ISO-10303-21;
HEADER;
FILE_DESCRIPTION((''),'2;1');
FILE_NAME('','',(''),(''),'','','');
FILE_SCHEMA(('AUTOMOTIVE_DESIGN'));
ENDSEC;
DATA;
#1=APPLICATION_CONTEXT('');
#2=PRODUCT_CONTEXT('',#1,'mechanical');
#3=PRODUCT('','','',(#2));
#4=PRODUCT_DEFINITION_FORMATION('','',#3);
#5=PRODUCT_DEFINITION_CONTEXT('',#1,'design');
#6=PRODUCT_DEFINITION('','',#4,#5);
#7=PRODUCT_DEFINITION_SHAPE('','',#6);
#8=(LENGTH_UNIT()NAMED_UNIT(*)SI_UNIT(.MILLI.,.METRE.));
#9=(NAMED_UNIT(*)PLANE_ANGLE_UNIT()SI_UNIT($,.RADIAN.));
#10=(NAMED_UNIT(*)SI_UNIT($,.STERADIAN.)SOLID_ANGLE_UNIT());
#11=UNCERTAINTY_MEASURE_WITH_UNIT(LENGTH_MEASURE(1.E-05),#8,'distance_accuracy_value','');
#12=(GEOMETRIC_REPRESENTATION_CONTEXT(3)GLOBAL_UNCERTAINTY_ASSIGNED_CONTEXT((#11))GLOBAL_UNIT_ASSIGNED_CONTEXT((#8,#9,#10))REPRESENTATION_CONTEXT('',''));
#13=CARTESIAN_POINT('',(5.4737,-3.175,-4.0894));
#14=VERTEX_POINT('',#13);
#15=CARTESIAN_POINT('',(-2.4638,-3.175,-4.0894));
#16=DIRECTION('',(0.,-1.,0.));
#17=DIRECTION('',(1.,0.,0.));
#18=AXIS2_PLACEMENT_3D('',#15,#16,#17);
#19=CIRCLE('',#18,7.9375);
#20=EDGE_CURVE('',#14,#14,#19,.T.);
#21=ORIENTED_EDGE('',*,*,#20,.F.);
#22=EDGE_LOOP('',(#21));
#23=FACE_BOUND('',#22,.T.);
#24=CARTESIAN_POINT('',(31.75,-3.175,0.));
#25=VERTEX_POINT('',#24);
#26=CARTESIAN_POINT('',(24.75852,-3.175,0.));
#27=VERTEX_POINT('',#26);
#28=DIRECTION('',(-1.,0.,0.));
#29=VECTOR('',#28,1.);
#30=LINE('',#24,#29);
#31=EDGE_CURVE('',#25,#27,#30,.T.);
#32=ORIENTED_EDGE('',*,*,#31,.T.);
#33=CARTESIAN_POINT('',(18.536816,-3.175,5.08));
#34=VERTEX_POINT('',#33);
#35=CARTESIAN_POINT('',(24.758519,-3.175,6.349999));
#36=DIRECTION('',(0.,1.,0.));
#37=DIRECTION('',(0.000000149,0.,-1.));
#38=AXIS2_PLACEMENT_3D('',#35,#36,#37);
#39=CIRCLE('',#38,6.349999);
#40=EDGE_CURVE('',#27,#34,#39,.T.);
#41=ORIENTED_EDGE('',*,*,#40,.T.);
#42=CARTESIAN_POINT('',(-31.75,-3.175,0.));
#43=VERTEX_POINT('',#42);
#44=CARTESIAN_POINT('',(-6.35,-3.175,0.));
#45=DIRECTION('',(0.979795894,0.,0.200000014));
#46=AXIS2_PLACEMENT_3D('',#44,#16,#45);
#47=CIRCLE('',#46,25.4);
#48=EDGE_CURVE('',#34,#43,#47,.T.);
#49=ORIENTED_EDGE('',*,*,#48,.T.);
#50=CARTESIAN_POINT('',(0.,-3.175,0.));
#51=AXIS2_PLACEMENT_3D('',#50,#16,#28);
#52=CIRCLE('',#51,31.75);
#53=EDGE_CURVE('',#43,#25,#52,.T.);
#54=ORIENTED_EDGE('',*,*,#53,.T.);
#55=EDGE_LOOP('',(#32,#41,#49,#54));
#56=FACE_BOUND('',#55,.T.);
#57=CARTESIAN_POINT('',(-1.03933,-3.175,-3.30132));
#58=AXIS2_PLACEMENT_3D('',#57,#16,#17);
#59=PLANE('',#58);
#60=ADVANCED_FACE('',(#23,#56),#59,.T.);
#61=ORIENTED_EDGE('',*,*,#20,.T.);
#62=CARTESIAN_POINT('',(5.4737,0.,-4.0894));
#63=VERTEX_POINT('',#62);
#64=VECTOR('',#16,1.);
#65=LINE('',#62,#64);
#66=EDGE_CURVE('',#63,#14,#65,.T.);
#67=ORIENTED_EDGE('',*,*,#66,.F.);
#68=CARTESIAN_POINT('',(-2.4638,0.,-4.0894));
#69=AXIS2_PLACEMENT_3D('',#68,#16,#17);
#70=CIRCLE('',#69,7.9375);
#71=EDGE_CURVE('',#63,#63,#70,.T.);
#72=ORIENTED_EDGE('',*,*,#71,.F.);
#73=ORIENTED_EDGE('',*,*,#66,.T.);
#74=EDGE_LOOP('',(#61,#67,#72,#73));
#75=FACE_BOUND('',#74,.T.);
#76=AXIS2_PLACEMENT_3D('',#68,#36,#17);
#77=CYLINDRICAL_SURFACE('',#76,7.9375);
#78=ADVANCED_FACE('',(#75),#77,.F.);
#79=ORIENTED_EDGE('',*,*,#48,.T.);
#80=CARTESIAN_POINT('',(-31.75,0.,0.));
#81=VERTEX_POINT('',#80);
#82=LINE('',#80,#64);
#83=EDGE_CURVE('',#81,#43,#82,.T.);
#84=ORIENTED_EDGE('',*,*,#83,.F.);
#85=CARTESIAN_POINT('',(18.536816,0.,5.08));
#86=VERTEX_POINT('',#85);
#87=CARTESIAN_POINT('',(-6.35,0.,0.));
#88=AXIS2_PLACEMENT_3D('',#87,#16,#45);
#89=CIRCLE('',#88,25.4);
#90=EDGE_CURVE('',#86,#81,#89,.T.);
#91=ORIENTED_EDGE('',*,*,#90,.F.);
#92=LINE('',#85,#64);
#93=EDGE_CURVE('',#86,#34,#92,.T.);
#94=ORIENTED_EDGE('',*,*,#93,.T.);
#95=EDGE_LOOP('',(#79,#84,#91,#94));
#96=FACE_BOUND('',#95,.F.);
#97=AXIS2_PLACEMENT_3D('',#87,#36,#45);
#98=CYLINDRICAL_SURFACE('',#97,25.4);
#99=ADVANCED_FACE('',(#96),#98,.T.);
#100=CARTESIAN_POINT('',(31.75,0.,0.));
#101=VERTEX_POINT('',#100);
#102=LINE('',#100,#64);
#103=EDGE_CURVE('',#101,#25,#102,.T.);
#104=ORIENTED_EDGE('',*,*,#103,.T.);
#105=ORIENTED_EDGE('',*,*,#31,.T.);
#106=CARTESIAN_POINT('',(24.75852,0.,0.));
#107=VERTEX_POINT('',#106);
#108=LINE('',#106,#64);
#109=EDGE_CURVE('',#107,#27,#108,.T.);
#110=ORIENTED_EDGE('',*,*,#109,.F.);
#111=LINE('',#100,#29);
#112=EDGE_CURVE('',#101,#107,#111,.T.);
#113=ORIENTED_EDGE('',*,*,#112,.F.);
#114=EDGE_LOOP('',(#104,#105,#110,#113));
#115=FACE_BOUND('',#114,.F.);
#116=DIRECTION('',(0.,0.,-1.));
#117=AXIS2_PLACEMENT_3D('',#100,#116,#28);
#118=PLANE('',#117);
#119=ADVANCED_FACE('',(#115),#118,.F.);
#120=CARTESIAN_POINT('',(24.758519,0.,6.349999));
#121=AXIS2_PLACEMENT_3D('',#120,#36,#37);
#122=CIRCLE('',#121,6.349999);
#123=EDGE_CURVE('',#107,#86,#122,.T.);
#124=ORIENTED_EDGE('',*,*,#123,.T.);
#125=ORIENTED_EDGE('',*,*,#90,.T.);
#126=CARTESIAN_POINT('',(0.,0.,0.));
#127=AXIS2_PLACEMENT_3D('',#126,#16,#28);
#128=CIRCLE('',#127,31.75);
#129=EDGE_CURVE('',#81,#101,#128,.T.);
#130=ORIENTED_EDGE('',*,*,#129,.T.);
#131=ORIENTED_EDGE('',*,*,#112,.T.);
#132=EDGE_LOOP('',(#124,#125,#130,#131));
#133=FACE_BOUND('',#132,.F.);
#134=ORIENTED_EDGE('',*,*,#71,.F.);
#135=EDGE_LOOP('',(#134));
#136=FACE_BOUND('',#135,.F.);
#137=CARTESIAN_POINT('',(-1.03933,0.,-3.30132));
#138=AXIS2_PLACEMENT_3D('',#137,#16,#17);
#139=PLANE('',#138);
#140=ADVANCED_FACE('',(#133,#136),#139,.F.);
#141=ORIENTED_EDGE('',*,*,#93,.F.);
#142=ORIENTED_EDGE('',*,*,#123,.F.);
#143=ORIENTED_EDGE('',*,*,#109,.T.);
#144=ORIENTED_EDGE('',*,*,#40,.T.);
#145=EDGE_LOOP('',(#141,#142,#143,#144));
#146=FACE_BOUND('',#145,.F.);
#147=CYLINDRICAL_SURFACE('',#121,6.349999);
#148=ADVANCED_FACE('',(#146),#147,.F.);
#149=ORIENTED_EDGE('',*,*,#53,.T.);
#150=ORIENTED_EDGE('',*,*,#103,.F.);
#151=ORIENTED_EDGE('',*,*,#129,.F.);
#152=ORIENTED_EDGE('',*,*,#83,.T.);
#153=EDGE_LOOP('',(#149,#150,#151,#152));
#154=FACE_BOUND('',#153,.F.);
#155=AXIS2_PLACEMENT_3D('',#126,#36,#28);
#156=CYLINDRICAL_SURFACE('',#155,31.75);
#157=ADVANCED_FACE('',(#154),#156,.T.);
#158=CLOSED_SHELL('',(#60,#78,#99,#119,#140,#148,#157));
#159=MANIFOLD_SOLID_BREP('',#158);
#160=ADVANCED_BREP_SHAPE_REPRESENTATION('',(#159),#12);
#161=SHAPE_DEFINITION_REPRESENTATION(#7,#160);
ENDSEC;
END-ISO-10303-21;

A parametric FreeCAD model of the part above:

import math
import FreeCAD as App
import Part
import Sketcher
Q = App.Units.Quantity

doc = App.newDocument("Part")
body = doc.addObject("PartDesign::Body", "Body")

# Sketch on XZ plane
sketch1 = body.newObject("Sketcher::SketchObject", "Sketch")
sketch1.AttachmentSupport = (doc.getObject("XZ_Plane"), [""])
sketch1.MapMode = "FlatFace"
sketch1.addGeometry(Part.ArcOfCircle(Part.Circle(App.Vector(-6, 0, 0), App.Vector(0, 0, 1), 25), math.radians(12), math.radians(180)), False)
sketch1.addGeometry(Part.ArcOfCircle(Part.Circle(App.Vector(0, 0, 0), App.Vector(0, 0, 1), 32), math.radians(180), math.radians(360)), False)
sketch1.addGeometry(Part.LineSegment(App.Vector(32, 0, 0), App.Vector(25, 0, 0)), False)
sketch1.addGeometry(Part.ArcOfCircle(Part.Circle(App.Vector(25, 6, 0), App.Vector(0, 0, 1), 6), math.radians(-168), math.radians(-90)), False)
sketch1.addGeometry(Part.Circle(App.Vector(-2, -4, 0), App.Vector(0, 0, 1), 8), False)
sketch1.addConstraint(Sketcher.Constraint("Tangent", 0, 2, 1, 1))
sketch1.addConstraint(Sketcher.Constraint("Coincident", 1, 2, 2, 1))
sketch1.addConstraint(Sketcher.Constraint("Tangent", 2, 2, 3, 2))
sketch1.addConstraint(Sketcher.Constraint("Tangent", 3, 1, 0, 1))
sketch1.addConstraint(Sketcher.Constraint("Horizontal", 2))
sketch1.addConstraint(Sketcher.Constraint("Coincident", 1, 3, -1, 1))
sketch1.addConstraint(Sketcher.Constraint("PointOnObject", 0, 3, -1))
sketch1.addConstraint(Sketcher.Constraint("PointOnObject", 1, 2, -1))
sketch1.addConstraint(Sketcher.Constraint("Radius", 0, Q("1 in")))
sketch1.addConstraint(Sketcher.Constraint("Radius", 1, Q("1.25 in")))
sketch1.addConstraint(Sketcher.Constraint("Radius", 3, Q("0.25 in")))
sketch1.addConstraint(Sketcher.Constraint("Diameter", 4, Q("0.625 in")))
sketch1.addConstraint(Sketcher.Constraint("DistanceX", 4, 3, -1, 1, Q("0.097 in")))
sketch1.addConstraint(Sketcher.Constraint("DistanceY", 4, 3, -1, 1, Q("0.161 in")))
pad1 = body.newObject("PartDesign::Pad", "Pad")
pad1.Profile = sketch1
pad1.Length = Q("0.125 in")

doc.recompute()
